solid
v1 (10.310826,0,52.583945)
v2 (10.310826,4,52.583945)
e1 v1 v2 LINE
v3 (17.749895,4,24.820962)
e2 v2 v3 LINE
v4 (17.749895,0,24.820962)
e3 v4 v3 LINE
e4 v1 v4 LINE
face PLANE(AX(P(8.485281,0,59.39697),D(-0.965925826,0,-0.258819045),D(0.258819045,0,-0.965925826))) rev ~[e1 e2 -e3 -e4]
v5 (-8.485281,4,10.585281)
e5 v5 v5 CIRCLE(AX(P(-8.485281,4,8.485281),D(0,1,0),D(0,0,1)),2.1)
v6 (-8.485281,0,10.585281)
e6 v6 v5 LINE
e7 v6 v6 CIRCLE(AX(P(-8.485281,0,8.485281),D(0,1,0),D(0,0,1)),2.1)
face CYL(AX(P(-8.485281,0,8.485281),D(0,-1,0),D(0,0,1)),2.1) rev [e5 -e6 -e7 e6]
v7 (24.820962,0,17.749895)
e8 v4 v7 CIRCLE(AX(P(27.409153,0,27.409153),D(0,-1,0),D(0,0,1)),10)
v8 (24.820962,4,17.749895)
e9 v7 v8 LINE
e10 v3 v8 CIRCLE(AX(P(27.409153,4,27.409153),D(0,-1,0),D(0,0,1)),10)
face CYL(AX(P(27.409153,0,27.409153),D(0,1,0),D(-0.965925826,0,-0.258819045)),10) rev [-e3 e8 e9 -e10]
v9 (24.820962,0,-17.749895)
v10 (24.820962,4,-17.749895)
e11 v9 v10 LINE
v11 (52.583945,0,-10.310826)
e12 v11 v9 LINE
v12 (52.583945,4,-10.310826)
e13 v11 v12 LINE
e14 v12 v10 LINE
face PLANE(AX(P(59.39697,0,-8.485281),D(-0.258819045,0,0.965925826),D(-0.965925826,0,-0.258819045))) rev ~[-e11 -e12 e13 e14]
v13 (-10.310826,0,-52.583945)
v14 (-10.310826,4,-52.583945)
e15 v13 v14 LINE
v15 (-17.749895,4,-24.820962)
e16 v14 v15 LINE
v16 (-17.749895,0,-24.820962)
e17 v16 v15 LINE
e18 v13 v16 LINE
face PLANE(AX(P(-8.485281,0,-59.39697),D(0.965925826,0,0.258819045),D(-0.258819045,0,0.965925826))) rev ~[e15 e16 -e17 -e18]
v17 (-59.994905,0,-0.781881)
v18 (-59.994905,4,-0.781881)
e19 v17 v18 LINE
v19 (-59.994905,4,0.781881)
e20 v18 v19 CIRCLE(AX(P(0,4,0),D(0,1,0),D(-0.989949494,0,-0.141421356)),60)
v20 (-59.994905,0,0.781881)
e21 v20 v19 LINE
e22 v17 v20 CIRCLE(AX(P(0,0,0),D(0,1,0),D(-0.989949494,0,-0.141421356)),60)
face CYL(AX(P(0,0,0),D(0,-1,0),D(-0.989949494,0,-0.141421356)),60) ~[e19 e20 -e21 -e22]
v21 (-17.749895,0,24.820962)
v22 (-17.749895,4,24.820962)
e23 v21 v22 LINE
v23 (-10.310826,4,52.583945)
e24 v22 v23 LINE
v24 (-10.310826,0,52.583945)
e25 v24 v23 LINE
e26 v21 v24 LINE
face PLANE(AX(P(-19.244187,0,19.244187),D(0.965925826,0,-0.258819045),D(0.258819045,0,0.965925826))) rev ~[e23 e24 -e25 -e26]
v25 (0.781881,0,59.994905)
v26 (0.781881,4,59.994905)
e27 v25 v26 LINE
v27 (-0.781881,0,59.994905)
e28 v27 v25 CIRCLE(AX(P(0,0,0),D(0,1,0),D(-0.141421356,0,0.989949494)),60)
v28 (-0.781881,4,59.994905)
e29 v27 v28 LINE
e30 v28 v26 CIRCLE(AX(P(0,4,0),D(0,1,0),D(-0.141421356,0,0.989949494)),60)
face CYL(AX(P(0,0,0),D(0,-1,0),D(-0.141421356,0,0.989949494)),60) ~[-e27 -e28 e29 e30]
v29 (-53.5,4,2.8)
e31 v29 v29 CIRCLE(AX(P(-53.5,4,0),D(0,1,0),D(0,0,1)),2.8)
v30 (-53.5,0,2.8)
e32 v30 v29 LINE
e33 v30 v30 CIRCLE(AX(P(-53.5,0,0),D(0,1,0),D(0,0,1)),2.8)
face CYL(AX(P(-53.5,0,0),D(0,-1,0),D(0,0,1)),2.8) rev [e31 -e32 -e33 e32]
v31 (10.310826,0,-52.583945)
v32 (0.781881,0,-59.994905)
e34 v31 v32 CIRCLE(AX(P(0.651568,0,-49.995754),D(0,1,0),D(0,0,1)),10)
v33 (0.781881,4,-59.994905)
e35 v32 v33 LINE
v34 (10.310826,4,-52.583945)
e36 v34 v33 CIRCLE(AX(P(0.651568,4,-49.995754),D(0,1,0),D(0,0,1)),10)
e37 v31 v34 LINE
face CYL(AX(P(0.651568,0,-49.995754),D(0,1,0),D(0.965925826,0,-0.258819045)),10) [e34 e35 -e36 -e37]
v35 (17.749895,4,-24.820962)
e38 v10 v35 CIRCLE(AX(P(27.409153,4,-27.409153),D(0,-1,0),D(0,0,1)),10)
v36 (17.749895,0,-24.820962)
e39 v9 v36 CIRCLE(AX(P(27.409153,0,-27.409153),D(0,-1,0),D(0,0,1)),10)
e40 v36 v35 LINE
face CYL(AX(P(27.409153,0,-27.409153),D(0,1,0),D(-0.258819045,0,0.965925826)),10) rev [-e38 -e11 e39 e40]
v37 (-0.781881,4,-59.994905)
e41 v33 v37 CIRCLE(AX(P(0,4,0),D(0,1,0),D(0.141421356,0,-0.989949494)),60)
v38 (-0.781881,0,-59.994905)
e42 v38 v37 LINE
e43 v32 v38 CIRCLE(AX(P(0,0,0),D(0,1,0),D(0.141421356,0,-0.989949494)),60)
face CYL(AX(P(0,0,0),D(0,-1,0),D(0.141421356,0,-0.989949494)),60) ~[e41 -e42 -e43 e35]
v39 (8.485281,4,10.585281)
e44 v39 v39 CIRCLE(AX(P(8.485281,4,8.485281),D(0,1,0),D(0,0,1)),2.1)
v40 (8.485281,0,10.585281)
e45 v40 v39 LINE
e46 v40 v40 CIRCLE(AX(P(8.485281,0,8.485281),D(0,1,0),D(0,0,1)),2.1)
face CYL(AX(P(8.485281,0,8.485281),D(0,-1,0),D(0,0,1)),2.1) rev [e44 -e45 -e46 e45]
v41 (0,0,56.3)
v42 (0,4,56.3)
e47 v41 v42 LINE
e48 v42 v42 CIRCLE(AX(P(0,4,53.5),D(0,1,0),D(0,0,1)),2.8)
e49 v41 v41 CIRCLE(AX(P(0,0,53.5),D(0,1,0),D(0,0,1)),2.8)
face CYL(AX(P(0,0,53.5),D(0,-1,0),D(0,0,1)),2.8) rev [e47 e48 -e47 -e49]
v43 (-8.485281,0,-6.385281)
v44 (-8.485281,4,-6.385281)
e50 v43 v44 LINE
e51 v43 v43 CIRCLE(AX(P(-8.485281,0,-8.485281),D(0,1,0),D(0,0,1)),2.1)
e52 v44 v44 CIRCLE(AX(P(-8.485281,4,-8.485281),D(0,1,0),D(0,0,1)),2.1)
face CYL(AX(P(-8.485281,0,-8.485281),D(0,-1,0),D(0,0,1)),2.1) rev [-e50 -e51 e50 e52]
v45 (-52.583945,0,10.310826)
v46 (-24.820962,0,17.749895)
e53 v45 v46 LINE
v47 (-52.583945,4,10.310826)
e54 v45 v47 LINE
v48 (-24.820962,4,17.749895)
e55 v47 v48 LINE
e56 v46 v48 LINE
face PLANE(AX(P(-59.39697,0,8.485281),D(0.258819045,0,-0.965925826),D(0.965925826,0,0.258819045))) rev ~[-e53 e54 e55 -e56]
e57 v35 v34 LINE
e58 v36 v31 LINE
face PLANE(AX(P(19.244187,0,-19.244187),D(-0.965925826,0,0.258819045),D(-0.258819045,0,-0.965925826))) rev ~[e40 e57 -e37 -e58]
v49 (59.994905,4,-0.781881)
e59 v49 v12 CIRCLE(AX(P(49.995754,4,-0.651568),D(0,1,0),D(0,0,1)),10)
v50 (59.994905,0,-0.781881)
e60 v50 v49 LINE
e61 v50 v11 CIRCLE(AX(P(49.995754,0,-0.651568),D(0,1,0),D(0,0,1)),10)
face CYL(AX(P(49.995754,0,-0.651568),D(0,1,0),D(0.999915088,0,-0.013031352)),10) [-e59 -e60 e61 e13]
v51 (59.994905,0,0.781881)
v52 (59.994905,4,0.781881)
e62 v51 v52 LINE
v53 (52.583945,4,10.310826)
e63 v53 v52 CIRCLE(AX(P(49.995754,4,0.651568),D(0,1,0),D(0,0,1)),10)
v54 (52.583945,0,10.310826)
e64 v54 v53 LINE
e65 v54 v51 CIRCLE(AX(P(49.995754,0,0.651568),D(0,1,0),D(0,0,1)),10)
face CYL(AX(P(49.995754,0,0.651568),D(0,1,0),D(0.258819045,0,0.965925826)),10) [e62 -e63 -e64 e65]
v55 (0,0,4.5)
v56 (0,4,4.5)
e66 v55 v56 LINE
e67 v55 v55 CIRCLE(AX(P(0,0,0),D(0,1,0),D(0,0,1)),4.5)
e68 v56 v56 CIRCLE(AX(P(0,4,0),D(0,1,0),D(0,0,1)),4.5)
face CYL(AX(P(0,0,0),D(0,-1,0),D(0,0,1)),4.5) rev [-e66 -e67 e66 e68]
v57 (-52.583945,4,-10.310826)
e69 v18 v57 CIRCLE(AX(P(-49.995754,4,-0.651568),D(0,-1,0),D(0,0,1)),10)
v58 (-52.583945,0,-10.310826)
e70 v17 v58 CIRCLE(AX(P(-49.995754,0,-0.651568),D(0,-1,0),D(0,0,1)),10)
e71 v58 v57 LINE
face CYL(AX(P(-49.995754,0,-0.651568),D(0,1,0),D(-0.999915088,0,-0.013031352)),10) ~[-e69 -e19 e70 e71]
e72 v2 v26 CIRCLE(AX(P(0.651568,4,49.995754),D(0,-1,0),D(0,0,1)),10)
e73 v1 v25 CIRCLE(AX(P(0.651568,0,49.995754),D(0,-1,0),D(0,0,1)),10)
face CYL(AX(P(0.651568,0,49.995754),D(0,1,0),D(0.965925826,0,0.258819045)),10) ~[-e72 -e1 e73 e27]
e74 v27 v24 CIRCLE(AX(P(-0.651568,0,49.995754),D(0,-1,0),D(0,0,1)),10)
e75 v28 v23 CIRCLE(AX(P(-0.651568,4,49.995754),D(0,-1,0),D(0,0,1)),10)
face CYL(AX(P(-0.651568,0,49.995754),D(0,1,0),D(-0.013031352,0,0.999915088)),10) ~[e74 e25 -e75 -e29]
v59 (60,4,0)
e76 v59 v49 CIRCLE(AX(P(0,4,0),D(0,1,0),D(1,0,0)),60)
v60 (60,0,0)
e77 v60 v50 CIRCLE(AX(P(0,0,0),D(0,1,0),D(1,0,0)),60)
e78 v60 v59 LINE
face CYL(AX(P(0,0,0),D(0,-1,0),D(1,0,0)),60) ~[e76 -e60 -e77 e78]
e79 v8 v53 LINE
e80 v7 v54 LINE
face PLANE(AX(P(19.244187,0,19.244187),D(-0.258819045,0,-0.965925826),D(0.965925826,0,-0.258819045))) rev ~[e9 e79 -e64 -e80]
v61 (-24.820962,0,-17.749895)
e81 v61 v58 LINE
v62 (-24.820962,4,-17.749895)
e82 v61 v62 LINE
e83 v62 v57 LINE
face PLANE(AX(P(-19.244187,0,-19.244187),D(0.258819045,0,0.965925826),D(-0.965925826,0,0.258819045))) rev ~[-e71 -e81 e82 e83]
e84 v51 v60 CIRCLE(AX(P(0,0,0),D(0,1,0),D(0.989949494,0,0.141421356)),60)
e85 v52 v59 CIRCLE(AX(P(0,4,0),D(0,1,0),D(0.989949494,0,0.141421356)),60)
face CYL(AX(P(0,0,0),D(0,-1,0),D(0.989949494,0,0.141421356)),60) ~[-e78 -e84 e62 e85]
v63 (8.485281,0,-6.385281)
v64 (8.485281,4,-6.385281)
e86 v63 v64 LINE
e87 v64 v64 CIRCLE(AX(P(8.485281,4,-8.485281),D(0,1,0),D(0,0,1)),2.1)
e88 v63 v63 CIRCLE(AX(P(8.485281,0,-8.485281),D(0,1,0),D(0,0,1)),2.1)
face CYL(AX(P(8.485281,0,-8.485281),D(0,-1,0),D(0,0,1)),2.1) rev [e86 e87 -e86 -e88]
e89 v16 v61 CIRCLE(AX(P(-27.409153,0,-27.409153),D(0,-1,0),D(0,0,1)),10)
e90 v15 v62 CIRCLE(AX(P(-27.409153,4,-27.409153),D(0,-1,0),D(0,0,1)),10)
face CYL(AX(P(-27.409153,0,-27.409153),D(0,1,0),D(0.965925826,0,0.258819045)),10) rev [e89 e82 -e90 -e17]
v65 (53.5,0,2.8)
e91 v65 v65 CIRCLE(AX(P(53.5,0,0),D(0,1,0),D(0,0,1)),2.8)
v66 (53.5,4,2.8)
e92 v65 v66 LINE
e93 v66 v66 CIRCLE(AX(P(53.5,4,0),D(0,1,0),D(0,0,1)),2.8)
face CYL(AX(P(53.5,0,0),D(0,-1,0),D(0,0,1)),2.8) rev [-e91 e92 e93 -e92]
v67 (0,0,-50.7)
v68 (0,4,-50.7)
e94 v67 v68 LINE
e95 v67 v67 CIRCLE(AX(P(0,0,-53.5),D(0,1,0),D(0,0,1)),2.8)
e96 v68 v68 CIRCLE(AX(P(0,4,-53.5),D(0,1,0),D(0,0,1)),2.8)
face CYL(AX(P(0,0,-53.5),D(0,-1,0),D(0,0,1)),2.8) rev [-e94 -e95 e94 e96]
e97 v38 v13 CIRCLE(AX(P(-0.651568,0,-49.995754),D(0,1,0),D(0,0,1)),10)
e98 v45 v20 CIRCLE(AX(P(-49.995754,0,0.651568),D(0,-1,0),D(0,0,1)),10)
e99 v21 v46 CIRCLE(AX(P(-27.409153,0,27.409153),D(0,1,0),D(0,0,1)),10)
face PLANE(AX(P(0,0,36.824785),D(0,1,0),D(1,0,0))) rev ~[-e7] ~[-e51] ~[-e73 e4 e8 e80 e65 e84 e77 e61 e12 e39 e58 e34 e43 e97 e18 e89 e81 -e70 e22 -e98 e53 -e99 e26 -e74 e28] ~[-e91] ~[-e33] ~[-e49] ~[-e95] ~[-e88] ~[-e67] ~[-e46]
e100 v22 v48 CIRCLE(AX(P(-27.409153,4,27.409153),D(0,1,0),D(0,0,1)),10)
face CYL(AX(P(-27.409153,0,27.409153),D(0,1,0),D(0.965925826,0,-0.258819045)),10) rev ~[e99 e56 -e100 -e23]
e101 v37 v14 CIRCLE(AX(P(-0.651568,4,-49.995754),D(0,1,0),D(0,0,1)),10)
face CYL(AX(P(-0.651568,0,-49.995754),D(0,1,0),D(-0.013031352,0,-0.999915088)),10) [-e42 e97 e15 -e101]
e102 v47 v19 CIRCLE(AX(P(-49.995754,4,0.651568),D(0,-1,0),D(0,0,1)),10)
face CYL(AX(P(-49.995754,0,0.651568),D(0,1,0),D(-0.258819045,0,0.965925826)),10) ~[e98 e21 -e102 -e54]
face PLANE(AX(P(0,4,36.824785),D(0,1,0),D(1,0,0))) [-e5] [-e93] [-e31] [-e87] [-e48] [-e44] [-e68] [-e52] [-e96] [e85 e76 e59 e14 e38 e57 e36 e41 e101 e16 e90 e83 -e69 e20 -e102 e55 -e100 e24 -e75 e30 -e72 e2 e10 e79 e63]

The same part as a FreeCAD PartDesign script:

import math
import FreeCAD as App
import Part
import Sketcher
from FreeCAD import Vector
Q = App.Units.Quantity


def edges_at(feature, points):
    """Names of the edges that pass closest to the given points."""
    edges = feature.Shape.Edges
    near = lambda p: min(range(len(edges)), key=lambda i: edges[i].distToShape(Part.Vertex(*p))[0])
    return sorted({f"Edge{near(p) + 1}" for p in points})

doc = App.newDocument("Part")
params = doc.addObject("Spreadsheet::Sheet", "Params")
for row, (alias, value) in enumerate([
    ("sketch1_diameter", "9 mm"),
    ("sketch1_radius", "60 mm"),
    ("sketch1_diameter2", "5.6 mm"),
    ("sketch1_diameter3", "4.2 mm"),
    ("pad1_length", "4 mm"),
    ("fillet_radius", "10 mm"),
], start=1):
    params.set(f"A{row}", alias)
    params.set(f"B{row}", "=" + value)
    params.setAlias(f"B{row}", alias)

body = doc.addObject("PartDesign::Body", "Body")

# Sketch on XZ plane
sketch1 = body.newObject("Sketcher::SketchObject", "Sketch")
sketch1.AttachmentSupport = (doc.getObject("XZ_Plane"), [""])
sketch1.MapMode = "FlatFace"
sketch1.addGeometry(Part.LineSegment(Vector(-19.2, -19.2, 0), Vector(-59.4, -8.5, 0)), False)
sketch1.addGeometry(Part.ArcOfCircle(Part.Circle(Vector(0, 0, 0), Vector(0, 0, 1), 60), math.radians(171.87), math.radians(188.13)), False)
sketch1.addGeometry(Part.LineSegment(Vector(-59.4, 8.5, 0), Vector(-19.2, 19.2, 0)), False)
sketch1.addGeometry(Part.LineSegment(Vector(-19.2, 19.2, 0), Vector(-8.5, 59.4, 0)), False)
sketch1.addGeometry(Part.ArcOfCircle(Part.Circle(Vector(0, 0, 0), Vector(0, 0, 1), 60), math.radians(81.87), math.radians(98.13)), False)
sketch1.addGeometry(Part.LineSegment(Vector(8.5, 59.4, 0), Vector(19.2, 19.2, 0)), False)
sketch1.addGeometry(Part.LineSegment(Vector(19.2, 19.2, 0), Vector(59.4, 8.5, 0)), False)
sketch1.addGeometry(Part.ArcOfCircle(Part.Circle(Vector(0, 0, 0), Vector(0, 0, 1), 60), math.radians(0), math.radians(8.13)), False)
sketch1.addGeometry(Part.ArcOfCircle(Part.Circle(Vector(0, 0, 0), Vector(0, 0, 1), 60), math.radians(-8.13), math.radians(0)), False)
sketch1.addGeometry(Part.LineSegment(Vector(59.4, -8.5, 0), Vector(19.2, -19.2, 0)), False)
sketch1.addGeometry(Part.LineSegment(Vector(19.2, -19.2, 0), Vector(8.5, -59.4, 0)), False)
sketch1.addGeometry(Part.ArcOfCircle(Part.Circle(Vector(0, 0, 0), Vector(0, 0, 1), 60), math.radians(-98.13), math.radians(-81.87)), False)
sketch1.addGeometry(Part.LineSegment(Vector(-8.5, -59.4, 0), Vector(-19.2, -19.2, 0)), False)
sketch1.addGeometry(Part.Circle(Vector(-53.5, 0, 0), Vector(0, 0, 1), 2.8), False)
sketch1.addGeometry(Part.Circle(Vector(8.5, -8.5, 0), Vector(0, 0, 1), 2.1), False)
sketch1.addGeometry(Part.Circle(Vector(-8.5, -8.5, 0), Vector(0, 0, 1), 2.1), False)
sketch1.addGeometry(Part.Circle(Vector(-8.5, 8.5, 0), Vector(0, 0, 1), 2.1), False)
sketch1.addGeometry(Part.Circle(Vector(8.5, 8.5, 0), Vector(0, 0, 1), 2.1), False)
sketch1.addGeometry(Part.Circle(Vector(0, 0, 0), Vector(0, 0, 1), 4.5), False)
sketch1.addGeometry(Part.Circle(Vector(53.5, 0, 0), Vector(0, 0, 1), 2.8), False)
sketch1.addGeometry(Part.Circle(Vector(0, -53.5, 0), Vector(0, 0, 1), 2.8), False)
sketch1.addGeometry(Part.Circle(Vector(0, 53.5, 0), Vector(0, 0, 1), 2.8), False)
sketch1.addConstraint(Sketcher.Constraint("Coincident", 0, 2, 1, 2))
sketch1.addConstraint(Sketcher.Constraint("Coincident", 1, 1, 2, 1))
sketch1.addConstraint(Sketcher.Constraint("Coincident", 2, 2, 3, 1))
sketch1.addConstraint(Sketcher.Constraint("Coincident", 3, 2, 4, 2))
sketch1.addConstraint(Sketcher.Constraint("Coincident", 4, 1, 5, 1))
sketch1.addConstraint(Sketcher.Constraint("Coincident", 5, 2, 6, 1))
sketch1.addConstraint(Sketcher.Constraint("Coincident", 6, 2, 7, 2))
sketch1.addConstraint(Sketcher.Constraint("Tangent", 7, 1, 8, 2))
sketch1.addConstraint(Sketcher.Constraint("Coincident", 8, 1, 9, 1))
sketch1.addConstraint(Sketcher.Constraint("Coincident", 9, 2, 10, 1))
sketch1.addConstraint(Sketcher.Constraint("Coincident", 10, 2, 11, 2))
sketch1.addConstraint(Sketcher.Constraint("Coincident", 11, 1, 12, 1))
sketch1.addConstraint(Sketcher.Constraint("Coincident", 12, 2, 0, 1))
sketch1.addConstraint(Sketcher.Constraint("Coincident", 1, 3, -1, 1))
sketch1.addConstraint(Sketcher.Constraint("Coincident", 4, 3, -1, 1))
sketch1.addConstraint(Sketcher.Constraint("Coincident", 7, 3, -1, 1))
sketch1.addConstraint(Sketcher.Constraint("Coincident", 11, 3, -1, 1))
sketch1.addConstraint(Sketcher.Constraint("Coincident", 18, 3, -1, 1))
sketch1.addConstraint(Sketcher.Constraint("Equal", 1, 4))
sketch1.addConstraint(Sketcher.Constraint("Equal", 4, 7))
sketch1.addConstraint(Sketcher.Constraint("Equal", 7, 8))
sketch1.addConstraint(Sketcher.Constraint("Equal", 8, 11))
sketch1.addConstraint(Sketcher.Constraint("Equal", 14, 15))
sketch1.addConstraint(Sketcher.Constraint("Equal", 15, 16))
sketch1.addConstraint(Sketcher.Constraint("Equal", 16, 17))
sketch1.addConstraint(Sketcher.Constraint("Equal", 13, 19))
sketch1.addConstraint(Sketcher.Constraint("Equal", 19, 20))
sketch1.addConstraint(Sketcher.Constraint("Equal", 20, 21))
sketch1.addConstraint(Sketcher.Constraint("Symmetric", 14, 3, 16, 3, -1, 1))
sketch1.addConstraint(Sketcher.Constraint("Symmetric", 15, 3, 17, 3, -1, 1))
sketch1.addConstraint(Sketcher.Constraint("Symmetric", 13, 3, 19, 3, -1, 1))
sketch1.addConstraint(Sketcher.Constraint("Symmetric", 20, 3, 21, 3, -1, 1))
sketch1.addConstraint(Sketcher.Constraint("Symmetric", 2, 2, 9, 2, -1, 1))
sketch1.addConstraint(Sketcher.Constraint("Symmetric", 5, 2, 12, 2, -1, 1))
sketch1.addConstraint(Sketcher.Constraint("Symmetric", 14, 3, 15, 3, -2))
sketch1.addConstraint(Sketcher.Constraint("Symmetric", 2, 2, 5, 2, -2))
sketch1.addConstraint(Sketcher.Constraint("PointOnObject", 13, 3, -1))
sketch1.addConstraint(Sketcher.Constraint("PointOnObject", 20, 3, -2))
sketch1.addConstraint(Sketcher.Constraint("PointOnObject", 7, 1, -1))
sketch1.addConstraint(Sketcher.Constraint("Perpendicular", 0, 3))
sketch1.addConstraint(Sketcher.Constraint("Perpendicular", 2, 5))
sketch1.addConstraint(Sketcher.Constraint("Perpendicular", 3, 6))
sketch1.addConstraint(Sketcher.Constraint("Perpendicular", 5, 9))
sketch1.addConstraint(Sketcher.Constraint("Perpendicular", 6, 10))
sketch1.addConstraint(Sketcher.Constraint("Perpendicular", 9, 12))
sketch1.addConstraint(Sketcher.Constraint("Horizontal", 15, 3, 0, 2))
sketch1.addConstraint(Sketcher.Constraint("Horizontal", 17, 3, 1, 1))
sketch1.addConstraint(Sketcher.Constraint("Vertical", 16, 3, 3, 2))
sketch1.addConstraint(Sketcher.Constraint("Equal", 2, 3))
sketch1.addConstraint(Sketcher.Constraint("Diameter", 18, Q("9 mm")))
sketch1.addConstraint(Sketcher.Constraint("Radius", 1, Q("60 mm")))
sketch1.addConstraint(Sketcher.Constraint("Diameter", 13, Q("5.6 mm")))
sketch1.addConstraint(Sketcher.Constraint("Diameter", 14, Q("4.2 mm")))
sketch1.addConstraint(Sketcher.Constraint("Angle", 0, Q("165 deg")))
sketch1.addConstraint(Sketcher.Constraint("DistanceX", 13, 3, -1, 1, Q("53.5 mm")))
sketch1.addConstraint(Sketcher.Constraint("DistanceY", 20, 3, -1, 1, Q("53.5 mm")))
sketch1.addConstraint(Sketcher.Constraint("Distance", 0, Q("41.569219 mm")))
sketch1.setExpression("Constraints[49]", "Params.sketch1_diameter")
sketch1.setExpression("Constraints[50]", "Params.sketch1_radius")
sketch1.setExpression("Constraints[51]", "Params.sketch1_diameter2")
sketch1.setExpression("Constraints[52]", "Params.sketch1_diameter3")
pad1 = body.newObject("PartDesign::Pad", "Pad")
pad1.Profile = sketch1
pad1.setExpression("Length", "Params.pad1_length")
pad1.Reversed = True
doc.recompute()

fillet = body.newObject("PartDesign::Fillet", "Fillet")
fillet.Base = (pad1, edges_at(pad1, [
    (-19.244, 2, -19.244),
    (-8.485, 2, -59.397),
    (8.485, 2, -59.397),
    (19.244, 2, -19.244),
    (59.397, 2, -8.485),
    (59.397, 2, 8.485),
    (19.244, 2, 19.244),
    (8.485, 2, 59.397),
    (-8.485, 2, 59.397),
    (-19.244, 2, 19.244),
    (-59.397, 2, 8.485),
    (-59.397, 2, -8.485),
]))
fillet.setExpression("Radius", "Params.fillet_radius")

doc.recompute()
